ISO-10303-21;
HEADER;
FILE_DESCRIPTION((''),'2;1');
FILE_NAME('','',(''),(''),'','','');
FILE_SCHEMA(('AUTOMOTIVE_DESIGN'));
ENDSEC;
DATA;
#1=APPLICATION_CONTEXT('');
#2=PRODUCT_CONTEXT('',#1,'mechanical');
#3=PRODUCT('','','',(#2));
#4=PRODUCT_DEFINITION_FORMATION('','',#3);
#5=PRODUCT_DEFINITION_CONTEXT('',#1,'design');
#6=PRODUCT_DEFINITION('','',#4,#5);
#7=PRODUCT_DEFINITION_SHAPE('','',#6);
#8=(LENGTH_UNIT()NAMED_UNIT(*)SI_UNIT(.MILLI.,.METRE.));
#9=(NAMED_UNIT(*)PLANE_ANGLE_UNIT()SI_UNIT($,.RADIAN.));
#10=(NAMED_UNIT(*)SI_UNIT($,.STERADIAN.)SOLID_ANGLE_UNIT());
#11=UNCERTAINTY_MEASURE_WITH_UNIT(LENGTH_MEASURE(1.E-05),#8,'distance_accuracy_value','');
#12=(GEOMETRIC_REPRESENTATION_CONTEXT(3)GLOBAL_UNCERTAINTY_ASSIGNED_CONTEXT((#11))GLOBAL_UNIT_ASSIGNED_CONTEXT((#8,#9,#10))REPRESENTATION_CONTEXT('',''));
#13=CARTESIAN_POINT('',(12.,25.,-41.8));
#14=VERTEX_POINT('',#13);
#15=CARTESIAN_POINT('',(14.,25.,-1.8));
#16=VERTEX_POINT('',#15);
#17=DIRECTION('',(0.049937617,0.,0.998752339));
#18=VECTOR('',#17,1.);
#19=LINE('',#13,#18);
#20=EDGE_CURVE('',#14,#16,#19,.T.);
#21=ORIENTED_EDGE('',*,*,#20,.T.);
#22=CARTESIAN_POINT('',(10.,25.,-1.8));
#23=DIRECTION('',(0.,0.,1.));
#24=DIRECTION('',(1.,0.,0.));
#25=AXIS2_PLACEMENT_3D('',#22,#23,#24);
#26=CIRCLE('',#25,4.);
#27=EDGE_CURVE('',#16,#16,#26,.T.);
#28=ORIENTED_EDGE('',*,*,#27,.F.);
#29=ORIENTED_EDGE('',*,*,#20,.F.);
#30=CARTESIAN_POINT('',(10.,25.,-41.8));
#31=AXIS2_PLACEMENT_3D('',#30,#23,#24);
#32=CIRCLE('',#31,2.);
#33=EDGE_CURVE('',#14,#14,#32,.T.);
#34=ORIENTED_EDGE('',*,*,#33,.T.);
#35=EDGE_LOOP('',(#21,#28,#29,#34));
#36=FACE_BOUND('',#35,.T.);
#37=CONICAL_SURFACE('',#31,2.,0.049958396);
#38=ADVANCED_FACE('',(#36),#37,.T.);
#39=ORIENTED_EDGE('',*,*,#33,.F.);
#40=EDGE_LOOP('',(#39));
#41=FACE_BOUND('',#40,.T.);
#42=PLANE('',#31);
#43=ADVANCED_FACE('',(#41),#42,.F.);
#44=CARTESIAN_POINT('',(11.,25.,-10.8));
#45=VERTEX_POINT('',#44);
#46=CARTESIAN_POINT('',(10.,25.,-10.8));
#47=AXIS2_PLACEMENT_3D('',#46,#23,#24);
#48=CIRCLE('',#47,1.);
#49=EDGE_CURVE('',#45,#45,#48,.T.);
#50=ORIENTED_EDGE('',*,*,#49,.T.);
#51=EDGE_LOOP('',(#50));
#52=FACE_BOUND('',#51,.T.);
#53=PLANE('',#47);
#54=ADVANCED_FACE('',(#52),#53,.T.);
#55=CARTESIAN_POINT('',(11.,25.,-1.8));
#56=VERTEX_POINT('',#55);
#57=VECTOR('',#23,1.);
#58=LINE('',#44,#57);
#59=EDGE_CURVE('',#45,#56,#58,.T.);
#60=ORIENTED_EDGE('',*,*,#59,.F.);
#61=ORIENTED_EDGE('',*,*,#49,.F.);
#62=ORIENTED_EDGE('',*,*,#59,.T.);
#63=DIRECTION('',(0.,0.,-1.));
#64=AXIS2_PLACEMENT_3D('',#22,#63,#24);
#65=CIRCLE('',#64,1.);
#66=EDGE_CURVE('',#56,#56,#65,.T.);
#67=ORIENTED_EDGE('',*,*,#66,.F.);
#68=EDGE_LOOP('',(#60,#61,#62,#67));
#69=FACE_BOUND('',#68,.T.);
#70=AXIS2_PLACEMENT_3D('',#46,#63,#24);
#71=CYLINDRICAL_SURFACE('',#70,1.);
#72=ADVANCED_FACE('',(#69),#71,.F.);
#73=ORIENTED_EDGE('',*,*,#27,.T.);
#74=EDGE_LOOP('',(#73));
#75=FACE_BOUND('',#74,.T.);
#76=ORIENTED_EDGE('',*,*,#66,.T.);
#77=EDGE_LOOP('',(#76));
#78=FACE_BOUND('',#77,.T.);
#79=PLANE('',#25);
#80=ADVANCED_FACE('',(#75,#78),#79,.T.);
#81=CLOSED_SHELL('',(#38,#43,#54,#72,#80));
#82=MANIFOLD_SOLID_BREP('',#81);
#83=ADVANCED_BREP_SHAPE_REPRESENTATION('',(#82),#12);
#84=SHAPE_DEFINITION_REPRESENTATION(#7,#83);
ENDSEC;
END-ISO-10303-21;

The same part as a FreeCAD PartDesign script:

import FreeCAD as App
import Part
import Sketcher

V = App.Vector

doc = App.newDocument("Part")
body = doc.addObject("PartDesign::Body", "Body")

# Sketch on XY plane
sketch1 = body.newObject("Sketcher::SketchObject", "Sketch")
sketch1.AttachmentSupport = (doc.getObject("XY_Plane"), [""])
sketch1.MapMode = "FlatFace"
sketch1.AttachmentOffset = App.Placement(V(0, 0, 31), App.Rotation())
sketch1.addGeometry(Part.Circle(V(0, 0, 0), V(0, 0, 1), 1), False)
sketch1.addConstraint(Sketcher.Constraint("Coincident", 0, 3, -1, 1))
sketch1.addConstraint(Sketcher.Constraint("Diameter", 0, 2.0))
pad1 = body.newObject("PartDesign::Pad", "Pad")
pad1.Profile = sketch1
pad1.Length = 10
body2 = doc.addObject("PartDesign::Body", "Body001")

# Sketch on XZ plane
sketch2 = body2.newObject("Sketcher::SketchObject", "Sketch001")
sketch2.AttachmentSupport = (doc.getObject("XZ_Plane001"), [""])
sketch2.MapMode = "FlatFace"
sketch2.addGeometry(Part.LineSegment(V(0, 0, 0), V(2, 0, 0)), False)
sketch2.addGeometry(Part.LineSegment(V(2, 0, 0), V(4, 40, 0)), False)
sketch2.addGeometry(Part.LineSegment(V(4, 40, 0), V(0, 40, 0)), False)
sketch2.addGeometry(Part.LineSegment(V(0, 40, 0), V(0, 0, 0)), False)
sketch2.addConstraint(Sketcher.Constraint("Coincident", 0, 2, 1, 1))
sketch2.addConstraint(Sketcher.Constraint("Coincident", 1, 2, 2, 1))
sketch2.addConstraint(Sketcher.Constraint("Coincident", 2, 2, 3, 1))
sketch2.addConstraint(Sketcher.Constraint("Coincident", 3, 2, 0, 1))
sketch2.addConstraint(Sketcher.Constraint("Horizontal", 0))
sketch2.addConstraint(Sketcher.Constraint("Horizontal", 2))
sketch2.addConstraint(Sketcher.Constraint("Vertical", 3))
sketch2.addConstraint(Sketcher.Constraint("Coincident", 3, 2, -1, 1))
sketch2.addConstraint(Sketcher.Constraint("DistanceX", 0, 1, 0, 2, 2.0))
sketch2.addConstraint(Sketcher.Constraint("DistanceX", 2, 2, 2, 1, 4.0))
sketch2.addConstraint(Sketcher.Constraint("DistanceY", 3, 2, 3, 1, 40.0))
revolution = body2.newObject("PartDesign::Revolution", "Revolution")
revolution.Profile = sketch2
revolution.ReferenceAxis = (sketch2, ["V_Axis"])
revolution.Angle = 360
doc.recompute()

boolean = body2.newObject("PartDesign::Boolean", "Boolean")
boolean.Type = "Cut"
boolean.addObjects([body])
body3 = doc.addObject("PartDesign::Body", "Body002")
doc.recompute()

body2.Placement = App.Placement(V(10, 25, -41.8), App.Rotation(V(0, 0, 1), 0))
boolean2 = body3.newObject("PartDesign::Boolean", "Boolean001")
boolean2.Type = "Fuse"
boolean2.addObjects([body2])

doc.recompute()
